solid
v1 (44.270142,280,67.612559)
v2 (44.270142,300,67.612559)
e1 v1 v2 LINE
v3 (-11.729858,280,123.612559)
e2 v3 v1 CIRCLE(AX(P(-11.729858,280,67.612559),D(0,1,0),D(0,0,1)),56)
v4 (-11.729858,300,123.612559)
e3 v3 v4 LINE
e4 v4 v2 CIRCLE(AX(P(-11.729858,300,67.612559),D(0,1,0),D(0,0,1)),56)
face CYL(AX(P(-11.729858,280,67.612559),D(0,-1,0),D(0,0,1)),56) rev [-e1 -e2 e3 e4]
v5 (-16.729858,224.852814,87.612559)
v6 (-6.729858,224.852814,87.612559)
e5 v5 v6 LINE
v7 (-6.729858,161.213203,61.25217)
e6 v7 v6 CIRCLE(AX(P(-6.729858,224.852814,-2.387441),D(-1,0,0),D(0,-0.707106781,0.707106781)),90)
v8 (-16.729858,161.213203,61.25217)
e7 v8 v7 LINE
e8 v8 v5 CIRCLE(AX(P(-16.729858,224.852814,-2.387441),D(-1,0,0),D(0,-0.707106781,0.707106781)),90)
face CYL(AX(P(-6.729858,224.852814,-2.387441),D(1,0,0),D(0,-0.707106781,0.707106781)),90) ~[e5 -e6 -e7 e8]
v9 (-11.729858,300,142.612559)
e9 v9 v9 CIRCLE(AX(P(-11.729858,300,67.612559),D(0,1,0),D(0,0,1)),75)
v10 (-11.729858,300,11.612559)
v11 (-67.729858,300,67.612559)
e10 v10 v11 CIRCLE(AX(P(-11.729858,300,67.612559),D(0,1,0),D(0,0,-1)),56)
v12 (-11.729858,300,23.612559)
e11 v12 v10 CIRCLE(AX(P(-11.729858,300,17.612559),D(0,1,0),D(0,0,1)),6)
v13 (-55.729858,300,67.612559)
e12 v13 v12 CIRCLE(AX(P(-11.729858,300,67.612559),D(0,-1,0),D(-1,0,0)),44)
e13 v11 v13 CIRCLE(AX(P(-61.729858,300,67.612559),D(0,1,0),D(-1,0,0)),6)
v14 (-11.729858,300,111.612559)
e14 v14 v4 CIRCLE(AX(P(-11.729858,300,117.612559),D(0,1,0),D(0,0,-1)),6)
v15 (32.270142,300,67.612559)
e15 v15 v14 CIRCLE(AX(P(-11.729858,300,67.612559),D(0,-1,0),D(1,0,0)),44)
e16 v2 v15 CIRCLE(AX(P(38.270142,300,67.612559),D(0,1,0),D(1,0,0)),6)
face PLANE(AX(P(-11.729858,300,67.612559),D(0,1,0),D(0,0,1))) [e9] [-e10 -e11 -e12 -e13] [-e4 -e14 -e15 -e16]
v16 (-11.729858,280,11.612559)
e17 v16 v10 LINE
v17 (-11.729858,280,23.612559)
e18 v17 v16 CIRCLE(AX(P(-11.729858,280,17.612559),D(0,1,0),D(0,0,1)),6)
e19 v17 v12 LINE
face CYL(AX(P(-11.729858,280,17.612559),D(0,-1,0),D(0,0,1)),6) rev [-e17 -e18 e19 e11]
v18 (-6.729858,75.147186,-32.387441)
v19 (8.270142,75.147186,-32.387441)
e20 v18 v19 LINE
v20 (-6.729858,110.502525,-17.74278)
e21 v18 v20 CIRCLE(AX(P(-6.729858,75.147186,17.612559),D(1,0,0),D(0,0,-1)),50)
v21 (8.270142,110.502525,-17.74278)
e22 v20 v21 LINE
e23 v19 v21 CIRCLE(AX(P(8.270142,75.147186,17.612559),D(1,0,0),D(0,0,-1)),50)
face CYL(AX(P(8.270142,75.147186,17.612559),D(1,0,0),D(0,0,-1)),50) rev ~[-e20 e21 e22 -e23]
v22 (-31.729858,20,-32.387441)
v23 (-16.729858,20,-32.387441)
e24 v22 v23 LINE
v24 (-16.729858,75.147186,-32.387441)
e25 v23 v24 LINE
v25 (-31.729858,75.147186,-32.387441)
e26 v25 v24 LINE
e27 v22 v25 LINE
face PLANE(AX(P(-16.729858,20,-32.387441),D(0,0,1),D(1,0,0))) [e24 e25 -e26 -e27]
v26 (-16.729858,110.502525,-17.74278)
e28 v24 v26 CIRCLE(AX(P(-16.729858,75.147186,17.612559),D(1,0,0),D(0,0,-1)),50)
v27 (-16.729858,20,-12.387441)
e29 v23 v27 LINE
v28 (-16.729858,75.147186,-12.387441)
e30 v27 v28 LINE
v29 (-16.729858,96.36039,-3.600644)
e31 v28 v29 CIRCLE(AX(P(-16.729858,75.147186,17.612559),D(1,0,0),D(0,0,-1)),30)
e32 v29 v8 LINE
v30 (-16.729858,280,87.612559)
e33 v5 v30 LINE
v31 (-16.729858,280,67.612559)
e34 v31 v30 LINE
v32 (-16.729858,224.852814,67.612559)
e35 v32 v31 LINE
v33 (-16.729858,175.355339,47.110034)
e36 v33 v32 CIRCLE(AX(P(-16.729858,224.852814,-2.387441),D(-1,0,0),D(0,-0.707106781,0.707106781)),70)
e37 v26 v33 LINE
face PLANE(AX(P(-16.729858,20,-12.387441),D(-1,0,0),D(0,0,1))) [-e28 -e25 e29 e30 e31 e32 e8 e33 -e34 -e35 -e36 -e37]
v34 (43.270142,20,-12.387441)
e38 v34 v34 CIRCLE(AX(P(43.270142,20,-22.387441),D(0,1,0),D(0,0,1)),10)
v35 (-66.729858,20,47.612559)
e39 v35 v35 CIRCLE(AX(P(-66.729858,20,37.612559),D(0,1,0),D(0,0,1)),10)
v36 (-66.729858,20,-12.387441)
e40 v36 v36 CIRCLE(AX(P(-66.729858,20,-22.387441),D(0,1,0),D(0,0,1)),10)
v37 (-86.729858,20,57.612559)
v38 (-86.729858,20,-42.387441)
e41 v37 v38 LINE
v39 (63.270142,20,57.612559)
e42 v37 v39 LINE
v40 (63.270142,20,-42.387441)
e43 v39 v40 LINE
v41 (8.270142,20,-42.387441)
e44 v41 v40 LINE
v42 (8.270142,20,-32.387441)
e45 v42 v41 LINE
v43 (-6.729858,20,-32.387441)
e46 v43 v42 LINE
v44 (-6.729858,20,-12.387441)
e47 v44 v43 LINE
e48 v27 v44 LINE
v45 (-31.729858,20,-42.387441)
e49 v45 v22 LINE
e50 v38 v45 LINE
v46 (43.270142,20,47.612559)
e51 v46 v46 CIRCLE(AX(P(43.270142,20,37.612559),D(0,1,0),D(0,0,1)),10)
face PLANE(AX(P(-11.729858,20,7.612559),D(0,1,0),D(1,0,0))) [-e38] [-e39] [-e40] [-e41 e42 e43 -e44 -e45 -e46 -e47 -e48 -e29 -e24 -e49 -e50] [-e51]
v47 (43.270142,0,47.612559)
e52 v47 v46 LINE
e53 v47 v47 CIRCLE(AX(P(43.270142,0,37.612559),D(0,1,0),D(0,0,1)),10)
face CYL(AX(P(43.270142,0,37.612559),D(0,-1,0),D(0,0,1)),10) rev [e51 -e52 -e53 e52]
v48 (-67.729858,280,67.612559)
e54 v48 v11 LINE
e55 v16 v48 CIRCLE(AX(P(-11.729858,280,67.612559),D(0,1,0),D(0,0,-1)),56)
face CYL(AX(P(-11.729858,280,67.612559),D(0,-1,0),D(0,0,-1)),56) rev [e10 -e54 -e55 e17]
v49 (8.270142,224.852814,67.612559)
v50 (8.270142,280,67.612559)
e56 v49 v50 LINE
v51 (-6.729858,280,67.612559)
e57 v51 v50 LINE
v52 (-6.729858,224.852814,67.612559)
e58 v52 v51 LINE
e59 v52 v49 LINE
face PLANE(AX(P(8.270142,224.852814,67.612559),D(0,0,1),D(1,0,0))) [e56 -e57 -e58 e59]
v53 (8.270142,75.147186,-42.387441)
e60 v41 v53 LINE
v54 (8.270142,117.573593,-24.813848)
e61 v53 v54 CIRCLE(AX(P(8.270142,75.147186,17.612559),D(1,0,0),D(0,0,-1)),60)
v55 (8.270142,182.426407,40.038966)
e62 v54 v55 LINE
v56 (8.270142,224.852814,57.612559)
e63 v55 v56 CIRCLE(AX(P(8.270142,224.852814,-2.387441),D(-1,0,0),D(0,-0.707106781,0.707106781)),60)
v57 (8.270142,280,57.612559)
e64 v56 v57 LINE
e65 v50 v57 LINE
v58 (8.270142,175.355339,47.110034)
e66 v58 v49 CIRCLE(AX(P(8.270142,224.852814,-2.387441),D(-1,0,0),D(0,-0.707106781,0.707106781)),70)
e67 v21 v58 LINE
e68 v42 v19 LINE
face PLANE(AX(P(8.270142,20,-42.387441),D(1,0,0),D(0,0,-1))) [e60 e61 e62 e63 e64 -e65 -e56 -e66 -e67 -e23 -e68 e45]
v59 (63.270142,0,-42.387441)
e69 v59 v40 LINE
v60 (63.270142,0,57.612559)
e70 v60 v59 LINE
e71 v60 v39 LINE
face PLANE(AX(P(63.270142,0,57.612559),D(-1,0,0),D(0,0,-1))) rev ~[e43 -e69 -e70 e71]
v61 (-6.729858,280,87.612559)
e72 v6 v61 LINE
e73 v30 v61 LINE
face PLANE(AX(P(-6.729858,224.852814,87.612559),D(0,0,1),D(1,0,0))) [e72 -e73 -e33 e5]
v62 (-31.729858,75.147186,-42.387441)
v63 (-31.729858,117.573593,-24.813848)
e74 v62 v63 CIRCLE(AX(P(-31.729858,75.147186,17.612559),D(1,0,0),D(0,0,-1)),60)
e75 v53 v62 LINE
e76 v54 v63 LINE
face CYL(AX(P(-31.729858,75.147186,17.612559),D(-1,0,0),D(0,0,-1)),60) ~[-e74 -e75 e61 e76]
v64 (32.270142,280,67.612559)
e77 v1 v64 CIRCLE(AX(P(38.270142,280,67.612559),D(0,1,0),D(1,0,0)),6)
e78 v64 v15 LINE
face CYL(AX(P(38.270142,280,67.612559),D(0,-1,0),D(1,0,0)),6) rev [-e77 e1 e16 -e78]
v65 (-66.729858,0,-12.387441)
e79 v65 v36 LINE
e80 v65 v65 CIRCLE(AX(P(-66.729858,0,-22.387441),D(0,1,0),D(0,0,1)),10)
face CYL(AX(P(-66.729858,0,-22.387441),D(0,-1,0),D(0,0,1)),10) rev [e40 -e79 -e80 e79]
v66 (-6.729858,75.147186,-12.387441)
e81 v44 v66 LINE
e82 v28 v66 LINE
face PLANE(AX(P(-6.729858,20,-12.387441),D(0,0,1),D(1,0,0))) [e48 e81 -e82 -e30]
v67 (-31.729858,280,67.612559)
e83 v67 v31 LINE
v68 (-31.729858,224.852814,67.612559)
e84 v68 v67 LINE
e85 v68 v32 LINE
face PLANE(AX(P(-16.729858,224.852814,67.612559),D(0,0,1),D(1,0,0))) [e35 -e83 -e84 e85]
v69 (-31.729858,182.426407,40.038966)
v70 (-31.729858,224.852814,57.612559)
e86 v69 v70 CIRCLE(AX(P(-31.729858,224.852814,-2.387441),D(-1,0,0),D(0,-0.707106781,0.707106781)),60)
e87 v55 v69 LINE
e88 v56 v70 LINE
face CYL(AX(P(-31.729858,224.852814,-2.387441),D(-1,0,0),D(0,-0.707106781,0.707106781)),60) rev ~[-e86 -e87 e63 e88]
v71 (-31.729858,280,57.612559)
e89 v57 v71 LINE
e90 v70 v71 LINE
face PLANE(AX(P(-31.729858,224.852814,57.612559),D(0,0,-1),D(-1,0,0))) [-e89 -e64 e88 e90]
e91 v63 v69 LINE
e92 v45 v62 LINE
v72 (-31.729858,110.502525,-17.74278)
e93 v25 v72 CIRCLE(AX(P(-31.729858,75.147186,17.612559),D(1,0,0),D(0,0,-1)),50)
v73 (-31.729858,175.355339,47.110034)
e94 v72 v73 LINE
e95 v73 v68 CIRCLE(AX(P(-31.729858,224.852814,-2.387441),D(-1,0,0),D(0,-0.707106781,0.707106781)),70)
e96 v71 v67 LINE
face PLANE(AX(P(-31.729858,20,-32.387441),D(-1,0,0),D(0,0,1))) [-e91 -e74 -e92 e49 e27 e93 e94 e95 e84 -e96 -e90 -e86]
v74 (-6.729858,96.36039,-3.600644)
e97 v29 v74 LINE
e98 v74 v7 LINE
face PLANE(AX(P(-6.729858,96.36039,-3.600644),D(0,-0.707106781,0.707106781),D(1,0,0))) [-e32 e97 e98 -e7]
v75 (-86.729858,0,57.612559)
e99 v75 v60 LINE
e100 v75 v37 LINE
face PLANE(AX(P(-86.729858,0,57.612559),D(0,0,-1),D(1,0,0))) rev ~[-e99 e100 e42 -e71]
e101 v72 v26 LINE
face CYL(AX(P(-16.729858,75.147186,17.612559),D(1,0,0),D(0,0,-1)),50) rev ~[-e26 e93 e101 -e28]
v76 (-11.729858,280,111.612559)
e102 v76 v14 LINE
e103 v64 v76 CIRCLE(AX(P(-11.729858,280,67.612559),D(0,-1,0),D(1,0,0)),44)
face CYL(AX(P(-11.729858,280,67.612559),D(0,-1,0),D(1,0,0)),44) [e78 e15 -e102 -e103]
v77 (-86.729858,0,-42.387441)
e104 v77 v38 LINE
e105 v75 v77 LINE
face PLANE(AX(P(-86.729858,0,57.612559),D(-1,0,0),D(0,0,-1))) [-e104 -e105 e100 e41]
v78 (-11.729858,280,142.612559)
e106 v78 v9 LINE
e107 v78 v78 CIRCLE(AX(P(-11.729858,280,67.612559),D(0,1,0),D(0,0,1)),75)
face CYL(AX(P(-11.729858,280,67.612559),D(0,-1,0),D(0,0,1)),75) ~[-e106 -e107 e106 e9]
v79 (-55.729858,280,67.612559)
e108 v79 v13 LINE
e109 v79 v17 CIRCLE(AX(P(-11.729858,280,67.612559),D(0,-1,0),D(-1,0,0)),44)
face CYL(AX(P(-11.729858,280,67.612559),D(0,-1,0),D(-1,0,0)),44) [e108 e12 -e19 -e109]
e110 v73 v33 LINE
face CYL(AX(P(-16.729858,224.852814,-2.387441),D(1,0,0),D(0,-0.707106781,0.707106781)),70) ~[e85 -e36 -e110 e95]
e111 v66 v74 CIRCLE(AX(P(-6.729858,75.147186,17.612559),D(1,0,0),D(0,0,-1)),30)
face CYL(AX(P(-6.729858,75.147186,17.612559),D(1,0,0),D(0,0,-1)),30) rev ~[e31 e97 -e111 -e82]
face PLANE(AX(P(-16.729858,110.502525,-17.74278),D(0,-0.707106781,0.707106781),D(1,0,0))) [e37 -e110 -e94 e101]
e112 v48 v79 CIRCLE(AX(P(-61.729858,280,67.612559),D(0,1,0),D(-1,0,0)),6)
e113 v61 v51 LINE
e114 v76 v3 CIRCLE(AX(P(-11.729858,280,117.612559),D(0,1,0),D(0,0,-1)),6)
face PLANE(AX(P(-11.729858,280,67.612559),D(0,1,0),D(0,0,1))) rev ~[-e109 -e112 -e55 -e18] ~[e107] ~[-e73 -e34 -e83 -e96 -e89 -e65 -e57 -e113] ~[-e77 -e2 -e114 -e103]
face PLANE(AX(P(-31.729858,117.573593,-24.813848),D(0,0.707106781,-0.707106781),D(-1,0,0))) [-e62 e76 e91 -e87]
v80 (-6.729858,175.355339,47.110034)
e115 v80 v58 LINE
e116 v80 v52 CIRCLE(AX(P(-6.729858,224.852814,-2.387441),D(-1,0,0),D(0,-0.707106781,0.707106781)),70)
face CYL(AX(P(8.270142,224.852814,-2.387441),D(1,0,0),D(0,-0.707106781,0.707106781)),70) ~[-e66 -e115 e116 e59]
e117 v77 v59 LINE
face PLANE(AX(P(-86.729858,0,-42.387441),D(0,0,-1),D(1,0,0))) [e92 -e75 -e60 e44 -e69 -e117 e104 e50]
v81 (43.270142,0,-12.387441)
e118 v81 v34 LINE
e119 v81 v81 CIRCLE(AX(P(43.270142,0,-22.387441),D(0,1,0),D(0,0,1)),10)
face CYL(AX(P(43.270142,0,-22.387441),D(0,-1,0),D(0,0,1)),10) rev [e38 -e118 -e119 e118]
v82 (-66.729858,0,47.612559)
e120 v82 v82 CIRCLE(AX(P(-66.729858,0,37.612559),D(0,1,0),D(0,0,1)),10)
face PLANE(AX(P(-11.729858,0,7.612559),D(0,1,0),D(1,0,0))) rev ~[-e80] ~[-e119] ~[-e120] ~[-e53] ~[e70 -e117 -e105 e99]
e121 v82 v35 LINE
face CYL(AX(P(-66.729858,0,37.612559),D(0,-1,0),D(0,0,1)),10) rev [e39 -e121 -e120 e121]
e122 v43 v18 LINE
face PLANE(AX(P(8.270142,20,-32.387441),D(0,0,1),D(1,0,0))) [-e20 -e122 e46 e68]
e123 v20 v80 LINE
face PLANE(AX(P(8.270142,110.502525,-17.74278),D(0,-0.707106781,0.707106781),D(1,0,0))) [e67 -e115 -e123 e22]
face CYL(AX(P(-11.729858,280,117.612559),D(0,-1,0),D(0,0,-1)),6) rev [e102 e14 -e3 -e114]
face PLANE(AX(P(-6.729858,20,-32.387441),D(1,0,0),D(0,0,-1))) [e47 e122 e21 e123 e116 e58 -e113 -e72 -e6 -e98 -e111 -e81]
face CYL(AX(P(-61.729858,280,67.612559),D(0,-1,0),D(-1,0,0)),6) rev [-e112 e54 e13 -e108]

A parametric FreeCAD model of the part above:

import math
import FreeCAD as App
import Part
import Sketcher
from FreeCAD import Vector
Q = App.Units.Quantity


def add_polygon(sketch, points):
    """Adds a closed chain of lines whose ends are joined by coincident constraints."""
    first, n = sketch.GeometryCount, len(points)
    for a, b in zip(points, points[1:] + points[:1]):
        sketch.addGeometry(Part.LineSegment(App.Vector(*a, 0), App.Vector(*b, 0)), False)
    for i in range(n):
        sketch.addConstraint(Sketcher.Constraint("Coincident", first + i, 2, first + (i + 1) % n, 1))

doc = App.newDocument("Part")
params = doc.addObject("Spreadsheet::Sheet", "Params")
for row, (alias, value) in enumerate([
    ("sketch1_diameter", "20 mm"),
    ("sketch1_width", "150 mm"),
    ("sketch1_height", "100 mm"),
    ("pad1_length", "20 mm"),
    ("sketch2_width", "40 mm"),
    ("sketch2_width2", "15 mm"),
    ("sketch2_height", "20 mm"),
    ("sketch3_radius", "60 mm"),
    ("sketch4_diameter", "150 mm"),
    ("sketch4_radius", "56 mm"),
    ("sketch4_radius2", "6 mm"),
    ("pad2_length", "20 mm"),
], start=1):
    params.set(f"A{row}", alias)
    params.set(f"B{row}", "=" + value)
    params.setAlias(f"B{row}", alias)

body = doc.addObject("PartDesign::Body", "Body")

sketch1 = doc.addObject("Sketcher::SketchObject", "Sketch")
body.addObject(sketch1)
sketch1.AttachmentSupport = (doc.XZ_Plane, [""])
sketch1.MapMode = "FlatFace"
add_polygon(sketch1, [(-87, -42), (-87, 58), (63, 58), (63, -42)])
sketch1.addGeometry(Part.Circle(Vector(-67, 38, 0), Vector(0, 0, 1), 10), False)
sketch1.addGeometry(Part.Circle(Vector(43, 38, 0), Vector(0, 0, 1), 10), False)
sketch1.addGeometry(Part.Circle(Vector(-67, -22, 0), Vector(0, 0, 1), 10), False)
sketch1.addGeometry(Part.Circle(Vector(43, -22, 0), Vector(0, 0, 1), 10), False)
sketch1.addConstraint([
    Sketcher.Constraint("Vertical", 0),
    Sketcher.Constraint("Horizontal", 1),
    Sketcher.Constraint("Vertical", 2),
    Sketcher.Constraint("Horizontal", 3),
    Sketcher.Constraint("Equal", 4, 5),
    Sketcher.Constraint("Equal", 5, 6),
    Sketcher.Constraint("Equal", 6, 7),
    Sketcher.Constraint("Horizontal", 4, 3, 5, 3),
    Sketcher.Constraint("Horizontal", 6, 3, 7, 3),
    Sketcher.Constraint("Vertical", 4, 3, 6, 3),
    Sketcher.Constraint("Vertical", 5, 3, 7, 3),
    Sketcher.Constraint("Diameter", 4, Q("20 mm")),
    Sketcher.Constraint("DistanceX", 1, 1, 1, 2, Q("150 mm")),
    Sketcher.Constraint("DistanceY", 0, 1, 0, 2, Q("100 mm")),
    Sketcher.Constraint("DistanceX", 4, 3, 5, 3, Q("110 mm")),
    Sketcher.Constraint("DistanceY", 6, 3, 4, 3, Q("60 mm")),
    Sketcher.Constraint("DistanceX", 0, 2, 4, 3, Q("20 mm")),
    Sketcher.Constraint("DistanceY", 4, 3, 0, 2, Q("20 mm")),
    Sketcher.Constraint("DistanceY", -1, 1, 4, 3, Q("37.612559 mm")),
    Sketcher.Constraint("DistanceX", 4, 3, -1, 1, Q("66.729858 mm")),
])
sketch1.setExpression("Constraints[15]", "Params.sketch1_diameter")
sketch1.setExpression("Constraints[16]", "Params.sketch1_width")
sketch1.setExpression("Constraints[17]", "Params.sketch1_height")
pad1 = doc.addObject("PartDesign::Pad", "Pad")
body.addObject(pad1)
pad1.Profile = sketch1
pad1.setExpression("Length", "Params.pad1_length")
pad1.Reversed = True

sketch2 = doc.addObject("Sketcher::SketchObject", "Sketch001")
body.addObject(sketch2)
sketch2.AttachmentSupport = (doc.XZ_Plane, [""])
sketch2.MapMode = "FlatFace"
sketch2.AttachmentOffset = App.Placement(Vector(0, 0, -20), App.Rotation())
add_polygon(sketch2, [(8, -42), (-32, -42), (-32, -32), (-17, -32), (-17, -12), (-7, -12), (-7, -32), (8, -32)])
sketch2.addConstraint([
    Sketcher.Constraint("Horizontal", 0),
    Sketcher.Constraint("Vertical", 1),
    Sketcher.Constraint("Horizontal", 2),
    Sketcher.Constraint("Vertical", 3),
    Sketcher.Constraint("Horizontal", 4),
    Sketcher.Constraint("Vertical", 5),
    Sketcher.Constraint("Horizontal", 6),
    Sketcher.Constraint("Vertical", 7),
    Sketcher.Constraint("Horizontal", 2, 2, 5, 2),
    Sketcher.Constraint("Equal", 2, 6),
    Sketcher.Constraint("Equal", 4, 1),
    Sketcher.Constraint("DistanceX", 0, 2, 0, 1, Q("40 mm")),
    Sketcher.Constraint("DistanceX", 2, 1, 2, 2, Q("15 mm")),
    Sketcher.Constraint("DistanceY", 3, 1, 3, 2, Q("20 mm")),
    Sketcher.Constraint("DistanceY", 0, 2, -1, 1, Q("42.387441 mm")),
    Sketcher.Constraint("DistanceX", 0, 2, -1, 1, Q("31.729858 mm")),
])
sketch2.setExpression("Constraints[19]", "Params.sketch2_width")
sketch2.setExpression("Constraints[20]", "Params.sketch2_width2")
sketch2.setExpression("Constraints[21]", "Params.sketch2_height")

sketch3 = doc.addObject("Sketcher::SketchObject", "Sketch002")
body.addObject(sketch3)
sketch3.AttachmentSupport = (doc.YZ_Plane, [""])
sketch3.MapMode = "FlatFace"
sketch3.AttachmentOffset = App.Placement(Vector(0, 0, -11.729858), App.Rotation())
sketch3.addGeometry([
    Part.LineSegment(Vector(20, -42, 0), Vector(75, -42, 0)),
    Part.ArcOfCircle(Part.Circle(Vector(75, 18, 0), Vector(0, 0, 1), 60), math.radians(-90), math.radians(-45)),
    Part.LineSegment(Vector(118, -25, 0), Vector(182, 40, 0)),
    Part.ArcOfCircle(Part.Circle(Vector(225, -2, 0), Vector(0, 0, 1), 60), math.radians(90), math.radians(135)),
    Part.LineSegment(Vector(225, 58, 0), Vector(280, 58, 0)),
], False)
sketch3.addConstraint([
    Sketcher.Constraint("Tangent", 0, 2, 1, 1),
    Sketcher.Constraint("Tangent", 1, 2, 2, 1),
    Sketcher.Constraint("Tangent", 2, 2, 3, 2),
    Sketcher.Constraint("Tangent", 3, 1, 4, 1),
    Sketcher.Constraint("Horizontal", 0),
    Sketcher.Constraint("Horizontal", 4),
    Sketcher.Constraint("Equal", 1, 3),
    Sketcher.Constraint("Equal", 0, 4),
    Sketcher.Constraint("Radius", 1, Q("60 mm")),
    Sketcher.Constraint("Angle", 2, Q("45 deg")),
    Sketcher.Constraint("DistanceX", -1, 1, 0, 1, Q("20 mm")),
    Sketcher.Constraint("DistanceX", -1, 1, 4, 2, Q("280 mm")),
    Sketcher.Constraint("DistanceY", 3, 3, 1, 3, Q("20 mm")),
    Sketcher.Constraint("DistanceY", -1, 1, 1, 3, Q("17.612559 mm")),
])
sketch3.setExpression("Constraints[8]", "Params.sketch3_radius")
doc.recompute()

additivepipe = doc.addObject("PartDesign::AdditivePipe", "AdditivePipe")
body.addObject(additivepipe)
additivepipe.Profile = sketch2
additivepipe.Spine = (sketch3, ["Edge1", "Edge2", "Edge3", "Edge4", "Edge5"])

sketch4 = doc.addObject("Sketcher::SketchObject", "Sketch003")
body.addObject(sketch4)
sketch4.AttachmentSupport = (doc.XZ_Plane, [""])
sketch4.MapMode = "FlatFace"
sketch4.AttachmentOffset = App.Placement(Vector(0, 0, -280), App.Rotation())
sketch4.addGeometry([
    Part.Circle(Vector(-12, 68, 0), Vector(0, 0, 1), 75),
    Part.ArcOfCircle(Part.Circle(Vector(-12, 68, 0), Vector(0, 0, 1), 56), math.radians(180), math.radians(270)),
    Part.ArcOfCircle(Part.Circle(Vector(-12, 18, 0), Vector(0, 0, 1), 6), math.radians(-90), math.radians(90)),
    Part.ArcOfCircle(Part.Circle(Vector(-12, 68, 0), Vector(0, 0, 1), 44), math.radians(180), math.radians(270)),
    Part.ArcOfCircle(Part.Circle(Vector(-62, 68, 0), Vector(0, 0, 1), 6), math.radians(0), math.radians(180)),
    Part.ArcOfCircle(Part.Circle(Vector(-12, 68, 0), Vector(0, 0, 1), 56), math.radians(0), math.radians(90)),
    Part.ArcOfCircle(Part.Circle(Vector(-12, 118, 0), Vector(0, 0, 1), 6), math.radians(90), math.radians(270)),
    Part.ArcOfCircle(Part.Circle(Vector(-12, 68, 0), Vector(0, 0, 1), 44), math.radians(0), math.radians(90)),
    Part.ArcOfCircle(Part.Circle(Vector(38, 68, 0), Vector(0, 0, 1), 6), math.radians(180), math.radians(360)),
], False)
sketch4.addConstraint([
    Sketcher.Constraint("Tangent", 1, 2, 2, 1),
    Sketcher.Constraint("Tangent", 2, 2, 3, 2),
    Sketcher.Constraint("Tangent", 3, 1, 4, 1),
    Sketcher.Constraint("Tangent", 4, 2, 1, 1),
    Sketcher.Constraint("Tangent", 5, 2, 6, 1),
    Sketcher.Constraint("Tangent", 6, 2, 7, 2),
    Sketcher.Constraint("Tangent", 7, 1, 8, 1),
    Sketcher.Constraint("Tangent", 8, 2, 5, 1),
    Sketcher.Constraint("Coincident", 1, 3, 0, 3),
    Sketcher.Constraint("Coincident", 3, 3, 0, 3),
    Sketcher.Constraint("Coincident", 5, 3, 0, 3),
    Sketcher.Constraint("Coincident", 7, 3, 0, 3),
    Sketcher.Constraint("Equal", 1, 5),
    Sketcher.Constraint("Equal", 4, 6),
    Sketcher.Constraint("Horizontal", 3, 3, 4, 3),
    Sketcher.Constraint("Horizontal", 7, 3, 8, 3),
    Sketcher.Constraint("Vertical", 1, 3, 2, 3),
    Sketcher.Constraint("Vertical", 5, 3, 6, 3),
    Sketcher.Constraint("Diameter", 0, Q("150 mm")),
    Sketcher.Constraint("Radius", 1, Q("56 mm")),
    Sketcher.Constraint("Radius", 2, Q("6 mm")),
    Sketcher.Constraint("DistanceY", -1, 1, 0, 3, Q("67.612559 mm")),
    Sketcher.Constraint("DistanceX", 0, 3, -1, 1, Q("11.729858 mm")),
])
sketch4.setExpression("Constraints[18]", "Params.sketch4_diameter")
sketch4.setExpression("Constraints[19]", "Params.sketch4_radius")
sketch4.setExpression("Constraints[20]", "Params.sketch4_radius2")
pad2 = doc.addObject("PartDesign::Pad", "Pad001")
body.addObject(pad2)
pad2.Profile = sketch4
pad2.setExpression("Length", "Params.pad2_length")
pad2.Reversed = True

doc.recompute()
